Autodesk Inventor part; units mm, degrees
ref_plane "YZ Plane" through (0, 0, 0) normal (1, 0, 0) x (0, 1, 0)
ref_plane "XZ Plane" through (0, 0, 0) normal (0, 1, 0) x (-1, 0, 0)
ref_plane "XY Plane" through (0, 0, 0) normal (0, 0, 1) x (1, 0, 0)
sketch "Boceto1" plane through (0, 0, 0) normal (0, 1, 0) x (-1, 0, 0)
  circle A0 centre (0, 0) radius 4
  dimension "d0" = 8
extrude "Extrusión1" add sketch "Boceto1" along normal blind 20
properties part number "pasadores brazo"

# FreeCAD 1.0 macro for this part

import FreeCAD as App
import Part
import Sketcher
from FreeCAD import Vector

doc = App.newDocument("Part")
body = doc.addObject("PartDesign::Body", "Body")

sketch1 = doc.addObject("Sketcher::SketchObject", "Sketch")
body.addObject(sketch1)
sketch1.AttachmentSupport = (doc.XZ_Plane, [""])
sketch1.MapMode = "FlatFace"
sketch1.addGeometry(Part.Circle(Vector(0, 0, 0), Vector(0, 0, 1), 4), False)
sketch1.addConstraint(Sketcher.Constraint("Coincident", 0, 3, -1, 1))
sketch1.addConstraint(Sketcher.Constraint("Diameter", 0, 8.0))
pad1 = doc.addObject("PartDesign::Pad", "Pad")
body.addObject(pad1)
pad1.Profile = sketch1
pad1.Length = 20
pad1.Reversed = True

doc.recompute()
